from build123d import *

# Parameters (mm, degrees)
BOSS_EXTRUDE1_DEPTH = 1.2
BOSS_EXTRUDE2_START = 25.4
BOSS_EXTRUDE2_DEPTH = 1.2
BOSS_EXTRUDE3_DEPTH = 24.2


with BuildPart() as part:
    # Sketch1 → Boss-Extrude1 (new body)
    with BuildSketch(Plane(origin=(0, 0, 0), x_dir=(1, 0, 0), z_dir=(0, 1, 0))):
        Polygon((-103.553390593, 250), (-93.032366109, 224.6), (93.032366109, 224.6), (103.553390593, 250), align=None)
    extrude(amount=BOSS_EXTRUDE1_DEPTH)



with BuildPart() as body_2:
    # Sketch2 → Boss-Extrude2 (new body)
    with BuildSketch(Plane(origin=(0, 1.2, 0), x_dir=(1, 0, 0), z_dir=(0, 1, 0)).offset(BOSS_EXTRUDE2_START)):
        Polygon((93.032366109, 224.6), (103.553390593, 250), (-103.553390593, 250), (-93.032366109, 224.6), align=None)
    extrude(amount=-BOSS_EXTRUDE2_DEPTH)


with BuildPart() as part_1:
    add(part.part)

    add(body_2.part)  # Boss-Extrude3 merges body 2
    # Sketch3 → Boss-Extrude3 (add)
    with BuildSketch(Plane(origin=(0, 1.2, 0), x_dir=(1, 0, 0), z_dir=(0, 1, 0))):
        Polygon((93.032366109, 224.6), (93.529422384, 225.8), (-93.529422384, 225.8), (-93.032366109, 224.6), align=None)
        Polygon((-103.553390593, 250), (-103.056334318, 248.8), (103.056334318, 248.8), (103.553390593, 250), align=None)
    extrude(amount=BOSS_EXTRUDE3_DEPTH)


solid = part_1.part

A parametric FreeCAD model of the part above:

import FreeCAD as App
import Part
import Sketcher

V = App.Vector
Q = App.Units.Quantity


def add_polygon(sketch, points):
    """Adds a closed chain of lines whose ends are joined by coincident constraints."""
    first, n = sketch.GeometryCount, len(points)
    for a, b in zip(points, points[1:] + points[:1]):
        sketch.addGeometry(Part.LineSegment(App.Vector(*a, 0), App.Vector(*b, 0)), False)
    for i in range(n):
        sketch.addConstraint(Sketcher.Constraint("Coincident", first + i, 2, first + (i + 1) % n, 1))

doc = App.newDocument("Part")
params = doc.addObject("Spreadsheet::Sheet", "Params")
for row, (alias, value) in enumerate([
    ("pad1_length", "1.2 mm"),
    ("pad2_length", "1.2 mm"),
    ("pad3_length", "24.2 mm"),
], start=1):
    params.set(f"A{row}", alias)
    params.set(f"B{row}", "=" + value)
    params.setAlias(f"B{row}", alias)

body = doc.addObject("PartDesign::Body", "Body")

# Sketch on XZ plane
sketch1 = body.newObject("Sketcher::SketchObject", "Sketch")
sketch1.AttachmentSupport = (doc.getObject("XZ_Plane"), [""])
sketch1.MapMode = "FlatFace"
add_polygon(sketch1, [(-103.553391, -250), (-93.032366, -224.6), (93.032366, -224.6), (103.553391, -250)])  # lines 0-3
sketch1.addConstraint(Sketcher.Constraint("Horizontal", 1))
sketch1.addConstraint(Sketcher.Constraint("Horizontal", 3))
sketch1.addConstraint(Sketcher.Constraint("Equal", 0, 2))
sketch1.addConstraint(Sketcher.Constraint("DistanceY", 2, 2, -1, 1, Q("250 mm")))
sketch1.addConstraint(Sketcher.Constraint("Angle", 0, Q("67.5 deg")))
sketch1.addConstraint(Sketcher.Constraint("DistanceY", 0, 2, -1, 1, Q("224.6 mm")))
sketch1.addConstraint(Sketcher.Constraint("DistanceX", 3, 2, 3, 1, Q("207.106781 mm")))
sketch1.addConstraint(Sketcher.Constraint("DistanceX", -1, 1, 2, 2, Q("103.553391 mm")))
pad1 = body.newObject("PartDesign::Pad", "Pad")
pad1.Profile = sketch1
pad1.setExpression("Length", "Params.pad1_length")
pad1.Reversed = True
body2 = doc.addObject("PartDesign::Body", "Body001")

# Sketch on XZ plane
sketch2 = body2.newObject("Sketcher::SketchObject", "Sketch001")
sketch2.AttachmentSupport = (doc.getObject("XZ_Plane001"), [""])
sketch2.MapMode = "FlatFace"
sketch2.AttachmentOffset = App.Placement(V(0, 0, -26.6), App.Rotation())
add_polygon(sketch2, [(93.032366, -224.6), (103.553391, -250), (-103.553391, -250), (-93.032366, -224.6)])  # lines 0-3
sketch2.addConstraint(Sketcher.Constraint("Horizontal", 1))
sketch2.addConstraint(Sketcher.Constraint("Horizontal", 3))
sketch2.addConstraint(Sketcher.Constraint("Equal", 0, 2))
sketch2.addConstraint(Sketcher.Constraint("DistanceY", 0, 2, -1, 1, Q("250 mm")))
sketch2.addConstraint(Sketcher.Constraint("Angle", 0, Q("-67.5 deg")))
sketch2.addConstraint(Sketcher.Constraint("DistanceY", 2, 2, -1, 1, Q("224.6 mm")))
sketch2.addConstraint(Sketcher.Constraint("DistanceX", 1, 2, 1, 1, Q("207.106781 mm")))
sketch2.addConstraint(Sketcher.Constraint("DistanceX", -1, 1, 0, 2, Q("103.553391 mm")))
pad2 = body2.newObject("PartDesign::Pad", "Pad001")
pad2.Profile = sketch2
pad2.setExpression("Length", "Params.pad2_length")
body.AllowCompound = True
doc.recompute()

boolean = body.newObject("PartDesign::Boolean", "Boolean")
boolean.Type = "Fuse"
boolean.addObjects([body2])

# Sketch on XZ plane
sketch3 = body.newObject("Sketcher::SketchObject", "Sketch002")
sketch3.AttachmentSupport = (doc.getObject("XZ_Plane"), [""])
sketch3.MapMode = "FlatFace"
sketch3.AttachmentOffset = App.Placement(V(0, 0, -1.2), App.Rotation())
add_polygon(sketch3, [(93.032366, -224.6), (93.529422, -225.8), (-93.529422, -225.8), (-93.032366, -224.6)])  # lines 0-3
add_polygon(sketch3, [(-103.553391, -250), (-103.056334, -248.8), (103.056334, -248.8), (103.553391, -250)])  # lines 4-7
sketch3.addConstraint(Sketcher.Constraint("Horizontal", 1))
sketch3.addConstraint(Sketcher.Constraint("Horizontal", 3))
sketch3.addConstraint(Sketcher.Constraint("Horizontal", 5))
sketch3.addConstraint(Sketcher.Constraint("Horizontal", 7))
sketch3.addConstraint(Sketcher.Constraint("Parallel", 2, 4))
sketch3.addConstraint(Sketcher.Constraint("Parallel", 0, 6))
sketch3.addConstraint(Sketcher.Constraint("Equal", 0, 2))
sketch3.addConstraint(Sketcher.Constraint("Equal", 2, 4))
sketch3.addConstraint(Sketcher.Constraint("DistanceY", 6, 2, -1, 1, Q("250 mm")))
sketch3.addConstraint(Sketcher.Constraint("Angle", 0, Q("-67.5 deg")))
sketch3.addConstraint(Sketcher.Constraint("DistanceY", 4, 2, 1, 2, Q("23 mm")))
sketch3.addConstraint(Sketcher.Constraint("DistanceY", 0, 2, -1, 1, Q("225.8 mm")))
sketch3.addConstraint(Sketcher.Constraint("DistanceX", 5, 1, 5, 2, Q("206.112669 mm")))
sketch3.addConstraint(Sketcher.Constraint("DistanceX", 4, 2, 3, 2, Q("196.0887 mm")))
sketch3.addConstraint(Sketcher.Constraint("DistanceX", 2, 2, 5, 2, Q("196.0887 mm")))
sketch3.addConstraint(Sketcher.Constraint("DistanceX", -1, 1, 6, 2, Q("103.553391 mm")))
pad3 = body.newObject("PartDesign::Pad", "Pad002")
pad3.Profile = sketch3
pad3.setExpression("Length", "Params.pad3_length")
pad3.Reversed = True

doc.recompute()
